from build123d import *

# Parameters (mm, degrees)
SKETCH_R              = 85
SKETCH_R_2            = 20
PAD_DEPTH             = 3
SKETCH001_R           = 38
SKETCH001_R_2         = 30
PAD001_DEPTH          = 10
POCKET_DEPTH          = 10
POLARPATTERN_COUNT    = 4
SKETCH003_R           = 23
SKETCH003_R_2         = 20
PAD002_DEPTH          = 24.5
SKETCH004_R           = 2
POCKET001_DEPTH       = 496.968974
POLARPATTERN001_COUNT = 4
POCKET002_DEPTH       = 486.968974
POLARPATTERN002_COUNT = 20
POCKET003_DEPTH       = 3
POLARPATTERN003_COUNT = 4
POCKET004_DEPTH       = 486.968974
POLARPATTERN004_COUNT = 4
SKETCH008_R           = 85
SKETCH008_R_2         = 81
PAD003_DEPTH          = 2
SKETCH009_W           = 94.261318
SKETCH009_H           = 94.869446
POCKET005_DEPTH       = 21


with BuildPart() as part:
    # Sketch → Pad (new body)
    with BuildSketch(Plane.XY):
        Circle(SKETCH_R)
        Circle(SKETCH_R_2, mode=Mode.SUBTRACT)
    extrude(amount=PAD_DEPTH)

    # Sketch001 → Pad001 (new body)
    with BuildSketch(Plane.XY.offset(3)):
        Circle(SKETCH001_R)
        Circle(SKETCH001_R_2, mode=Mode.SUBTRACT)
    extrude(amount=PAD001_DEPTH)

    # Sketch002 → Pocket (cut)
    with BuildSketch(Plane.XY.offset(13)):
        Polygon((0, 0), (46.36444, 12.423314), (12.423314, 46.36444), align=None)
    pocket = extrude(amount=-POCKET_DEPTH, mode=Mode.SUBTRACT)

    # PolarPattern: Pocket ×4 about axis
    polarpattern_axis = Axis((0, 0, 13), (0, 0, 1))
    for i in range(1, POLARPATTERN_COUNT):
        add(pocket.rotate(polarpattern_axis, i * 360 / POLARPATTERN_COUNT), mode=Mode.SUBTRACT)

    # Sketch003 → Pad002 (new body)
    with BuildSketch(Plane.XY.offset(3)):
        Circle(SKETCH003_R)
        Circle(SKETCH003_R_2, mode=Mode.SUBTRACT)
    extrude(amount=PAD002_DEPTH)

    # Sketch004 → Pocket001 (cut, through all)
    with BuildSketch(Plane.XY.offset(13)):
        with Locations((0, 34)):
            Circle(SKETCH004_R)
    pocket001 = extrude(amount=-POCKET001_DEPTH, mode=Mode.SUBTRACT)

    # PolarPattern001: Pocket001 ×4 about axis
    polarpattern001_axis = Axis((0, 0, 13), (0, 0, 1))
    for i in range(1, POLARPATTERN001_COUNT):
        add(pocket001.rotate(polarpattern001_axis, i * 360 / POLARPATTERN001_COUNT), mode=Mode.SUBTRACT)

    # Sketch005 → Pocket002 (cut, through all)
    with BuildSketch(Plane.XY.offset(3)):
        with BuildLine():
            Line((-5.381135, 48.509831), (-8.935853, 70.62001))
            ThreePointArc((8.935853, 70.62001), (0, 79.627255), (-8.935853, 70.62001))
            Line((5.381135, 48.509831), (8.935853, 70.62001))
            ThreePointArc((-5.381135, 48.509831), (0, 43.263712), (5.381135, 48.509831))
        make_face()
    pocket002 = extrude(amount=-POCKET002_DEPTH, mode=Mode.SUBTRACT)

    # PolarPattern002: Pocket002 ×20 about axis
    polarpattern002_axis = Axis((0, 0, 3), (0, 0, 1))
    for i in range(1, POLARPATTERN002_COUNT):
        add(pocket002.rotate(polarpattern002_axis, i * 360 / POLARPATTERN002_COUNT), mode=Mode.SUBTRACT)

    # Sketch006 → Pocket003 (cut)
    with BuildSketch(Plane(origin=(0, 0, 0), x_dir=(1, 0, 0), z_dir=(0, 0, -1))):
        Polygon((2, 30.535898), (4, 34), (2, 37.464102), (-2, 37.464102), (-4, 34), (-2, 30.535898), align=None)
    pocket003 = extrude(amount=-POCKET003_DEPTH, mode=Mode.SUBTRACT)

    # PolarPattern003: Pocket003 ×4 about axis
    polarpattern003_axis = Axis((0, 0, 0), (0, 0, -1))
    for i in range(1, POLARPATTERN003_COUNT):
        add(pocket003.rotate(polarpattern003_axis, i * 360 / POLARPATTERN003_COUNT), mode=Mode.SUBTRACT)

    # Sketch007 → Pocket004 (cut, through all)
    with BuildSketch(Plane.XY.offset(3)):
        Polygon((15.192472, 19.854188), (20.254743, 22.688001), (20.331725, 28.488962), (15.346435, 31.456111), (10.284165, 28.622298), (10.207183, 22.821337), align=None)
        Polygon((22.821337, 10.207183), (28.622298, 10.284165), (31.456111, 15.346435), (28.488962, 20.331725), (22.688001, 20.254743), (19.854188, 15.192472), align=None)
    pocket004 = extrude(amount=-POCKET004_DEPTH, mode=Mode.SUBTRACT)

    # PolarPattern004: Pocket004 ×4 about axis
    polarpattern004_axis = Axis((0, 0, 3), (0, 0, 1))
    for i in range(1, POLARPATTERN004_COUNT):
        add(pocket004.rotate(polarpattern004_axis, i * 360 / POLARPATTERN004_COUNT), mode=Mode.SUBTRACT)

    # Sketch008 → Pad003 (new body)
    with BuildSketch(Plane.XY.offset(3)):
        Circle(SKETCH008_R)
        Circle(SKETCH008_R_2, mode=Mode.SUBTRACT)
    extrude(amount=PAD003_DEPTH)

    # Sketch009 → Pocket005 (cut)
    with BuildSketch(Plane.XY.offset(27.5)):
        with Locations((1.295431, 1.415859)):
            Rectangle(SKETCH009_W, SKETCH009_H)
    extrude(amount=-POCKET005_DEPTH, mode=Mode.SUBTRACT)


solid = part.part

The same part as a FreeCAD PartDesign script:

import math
import FreeCAD as App
import Part
import Sketcher

V = App.Vector
Q = App.Units.Quantity

doc = App.newDocument("Part")
body = doc.addObject("PartDesign::Body", "Body")

sketch1 = body.newObject("Sketcher::SketchObject", "Sketch")
sketch1.AttachmentSupport = (doc.getObject("XY_Plane"), [""])
sketch1.MapMode = "FlatFace"
sketch1.addGeometry(Part.Circle(V(0, 0, 0), V(0, 0, 1), 85), False)
sketch1.addGeometry(Part.Circle(V(0, 0, 0), V(0, 0, 1), 20), False)
sketch1.addConstraint(Sketcher.Constraint("Coincident", 0, 3, -1, 1))
sketch1.addConstraint(Sketcher.Constraint("Coincident", 1, 3, -1, 1))
sketch1.addConstraint(Sketcher.Constraint("Diameter", 0, Q("170 mm")))
sketch1.addConstraint(Sketcher.Constraint("Diameter", 1, Q("40 mm")))
pad1 = body.newObject("PartDesign::Pad", "Pad")
pad1.Profile = sketch1
pad1.Length = 3

sketch2 = body.newObject("Sketcher::SketchObject", "Sketch001")
sketch2.AttachmentSupport = (doc.getObject("XY_Plane"), [""])
sketch2.MapMode = "FlatFace"
sketch2.AttachmentOffset = App.Placement(V(0, 0, 3), App.Rotation())
sketch2.addGeometry(Part.Circle(V(0, 0, 0), V(0, 0, 1), 38), False)
sketch2.addGeometry(Part.Circle(V(0, 0, 0), V(0, 0, 1), 30), False)
sketch2.addConstraint(Sketcher.Constraint("Coincident", 0, 3, -1, 1))
sketch2.addConstraint(Sketcher.Constraint("Coincident", 1, 3, -1, 1))
sketch2.addConstraint(Sketcher.Constraint("Diameter", 0, Q("76 mm")))
sketch2.addConstraint(Sketcher.Constraint("Diameter", 1, Q("60 mm")))
pad2 = body.newObject("PartDesign::Pad", "Pad001")
pad2.Profile = sketch2
pad2.Length = 10

sketch3 = body.newObject("Sketcher::SketchObject", "Sketch002")
sketch3.AttachmentSupport = (doc.getObject("XY_Plane"), [""])
sketch3.MapMode = "FlatFace"
sketch3.AttachmentOffset = App.Placement(V(0, 0, 13), App.Rotation())
sketch3.addGeometry(Part.LineSegment(V(0, 0, 0), V(46, 12, 0)), False)
sketch3.addGeometry(Part.LineSegment(V(46, 12, 0), V(12, 46, 0)), False)
sketch3.addGeometry(Part.LineSegment(V(12, 46, 0), V(0, 0, 0)), False)
sketch3.addConstraint(Sketcher.Constraint("Coincident", 0, 2, 1, 1))
sketch3.addConstraint(Sketcher.Constraint("Coincident", 1, 2, 2, 1))
sketch3.addConstraint(Sketcher.Constraint("Coincident", 2, 2, 0, 1))
sketch3.addConstraint(Sketcher.Constraint("Coincident", 2, 2, -1, 1))
sketch3.addConstraint(Sketcher.Constraint("Equal", 0, 1))
sketch3.addConstraint(Sketcher.Constraint("Equal", 1, 2))
sketch3.addConstraint(Sketcher.Constraint("Angle", 0, Q("15 deg")))
sketch3.addConstraint(Sketcher.Constraint("Distance", 0, Q("48 mm")))
pocket1 = body.newObject("PartDesign::Pocket", "Pocket")
pocket1.Profile = sketch3
pocket1.Length = 10
doc.recompute()

polarpattern = body.newObject("PartDesign::PolarPattern", "PolarPattern")
polarpattern.Originals = [pocket1]
polarpattern.Axis = (doc.getObject("Z_Axis"), [""])
polarpattern.Angle = 360
polarpattern.Occurrences = 4
body.Tip = polarpattern

sketch4 = body.newObject("Sketcher::SketchObject", "Sketch003")
sketch4.AttachmentSupport = (doc.getObject("XY_Plane"), [""])
sketch4.MapMode = "FlatFace"
sketch4.AttachmentOffset = App.Placement(V(0, 0, 3), App.Rotation())
sketch4.addGeometry(Part.Circle(V(0, 0, 0), V(0, 0, 1), 23), False)
sketch4.addGeometry(Part.Circle(V(0, 0, 0), V(0, 0, 1), 20), False)
sketch4.addConstraint(Sketcher.Constraint("Coincident", 0, 3, -1, 1))
sketch4.addConstraint(Sketcher.Constraint("Coincident", 1, 3, -1, 1))
sketch4.addConstraint(Sketcher.Constraint("Diameter", 0, Q("46 mm")))
sketch4.addConstraint(Sketcher.Constraint("Diameter", 1, Q("40 mm")))
pad3 = body.newObject("PartDesign::Pad", "Pad002")
pad3.Profile = sketch4
pad3.Length = 24.5

sketch5 = body.newObject("Sketcher::SketchObject", "Sketch004")
sketch5.AttachmentSupport = (doc.getObject("XY_Plane"), [""])
sketch5.MapMode = "FlatFace"
sketch5.AttachmentOffset = App.Placement(V(0, 0, 13), App.Rotation())
sketch5.addGeometry(Part.Circle(V(0, 34, 0), V(0, 0, 1), 2), False)
sketch5.addConstraint(Sketcher.Constraint("PointOnObject", 0, 3, -2))
sketch5.addConstraint(Sketcher.Constraint("Diameter", 0, Q("4 mm")))
sketch5.addConstraint(Sketcher.Constraint("DistanceY", -1, 1, 0, 3, Q("34 mm")))
pocket2 = body.newObject("PartDesign::Pocket", "Pocket001")
pocket2.Profile = sketch5
pocket2.Type = "ThroughAll"
doc.recompute()

polarpattern2 = body.newObject("PartDesign::PolarPattern", "PolarPattern001")
polarpattern2.Originals = [pocket2]
polarpattern2.Axis = (doc.getObject("Z_Axis"), [""])
polarpattern2.Angle = 360
polarpattern2.Occurrences = 4
body.Tip = polarpattern2

sketch6 = body.newObject("Sketcher::SketchObject", "Sketch005")
sketch6.AttachmentSupport = (doc.getObject("XY_Plane"), [""])
sketch6.MapMode = "FlatFace"
sketch6.AttachmentOffset = App.Placement(V(0, 0, 3), App.Rotation())
sketch6.addGeometry(Part.LineSegment(V(-9, 71, 0), V(-5, 49, 0)), False)
sketch6.addGeometry(Part.ArcOfCircle(Part.Circle(V(0, 49, 0), V(0, 0, 1), 5), math.radians(-179), math.radians(-1)), False)
sketch6.addGeometry(Part.LineSegment(V(5, 49, 0), V(9, 71, 0)), False)
sketch6.addGeometry(Part.ArcOfCircle(Part.Circle(V(0, 71, 0), V(0, 0, 1), 9), math.radians(0), math.radians(180)), False)
sketch6.addConstraint(Sketcher.Constraint("Coincident", 0, 2, 1, 1))
sketch6.addConstraint(Sketcher.Constraint("Coincident", 1, 2, 2, 1))
sketch6.addConstraint(Sketcher.Constraint("Coincident", 2, 2, 3, 1))
sketch6.addConstraint(Sketcher.Constraint("Coincident", 3, 2, 0, 1))
sketch6.addConstraint(Sketcher.Constraint("Symmetric", 0, 2, 1, 2, -2))
sketch6.addConstraint(Sketcher.Constraint("Symmetric", 2, 2, 3, 2, -2))
sketch6.addConstraint(Sketcher.Constraint("Radius", 1, Q("5.382872 mm")))
sketch6.addConstraint(Sketcher.Constraint("Radius", 3, Q("8.936136 mm")))
sketch6.addConstraint(Sketcher.Constraint("DistanceY", -1, 1, 3, 3, Q("70.691119 mm")))
sketch6.addConstraint(Sketcher.Constraint("DistanceY", -1, 1, 0, 2, Q("48.509831 mm")))
sketch6.addConstraint(Sketcher.Constraint("DistanceY", -1, 1, 2, 2, Q("70.62001 mm")))
sketch6.addConstraint(Sketcher.Constraint("DistanceX", 0, 2, 1, 2, Q("10.76227 mm")))
pocket3 = body.newObject("PartDesign::Pocket", "Pocket002")
pocket3.Profile = sketch6
pocket3.Type = "ThroughAll"
doc.recompute()

polarpattern3 = body.newObject("PartDesign::PolarPattern", "PolarPattern002")
polarpattern3.Originals = [pocket3]
polarpattern3.Axis = (doc.getObject("Z_Axis"), [""])
polarpattern3.Angle = 360
polarpattern3.Occurrences = 20
body.Tip = polarpattern3

sketch7 = body.newObject("Sketcher::SketchObject", "Sketch006")
sketch7.AttachmentSupport = (doc.getObject("XY_Plane"), [""])
sketch7.MapMode = "FlatFace"
sketch7.addGeometry(Part.LineSegment(V(2, -30.5, 0), V(4, -34, 0)), False)
sketch7.addGeometry(Part.LineSegment(V(4, -34, 0), V(2, -37.5, 0)), False)
sketch7.addGeometry(Part.LineSegment(V(2, -37.5, 0), V(-2, -37.5, 0)), False)
sketch7.addGeometry(Part.LineSegment(V(-2, -37.5, 0), V(-4, -34, 0)), False)
sketch7.addGeometry(Part.LineSegment(V(-4, -34, 0), V(-2, -30.5, 0)), False)
sketch7.addGeometry(Part.LineSegment(V(-2, -30.5, 0), V(2, -30.5, 0)), False)
sketch7.addConstraint(Sketcher.Constraint("Coincident", 0, 2, 1, 1))
sketch7.addConstraint(Sketcher.Constraint("Coincident", 1, 2, 2, 1))
sketch7.addConstraint(Sketcher.Constraint("Coincident", 2, 2, 3, 1))
sketch7.addConstraint(Sketcher.Constraint("Coincident", 3, 2, 4, 1))
sketch7.addConstraint(Sketcher.Constraint("Coincident", 4, 2, 5, 1))
sketch7.addConstraint(Sketcher.Constraint("Coincident", 5, 2, 0, 1))
sketch7.addConstraint(Sketcher.Constraint("Horizontal", 2))
sketch7.addConstraint(Sketcher.Constraint("Horizontal", 5))
sketch7.addConstraint(Sketcher.Constraint("Symmetric", 0, 2, 3, 2, -2))
sketch7.addConstraint(Sketcher.Constraint("Parallel", 0, 3))
sketch7.addConstraint(Sketcher.Constraint("Parallel", 1, 4))
sketch7.addConstraint(Sketcher.Constraint("Vertical", 2, 2, 4, 2))
sketch7.addConstraint(Sketcher.Constraint("Vertical", 1, 2, 5, 2))
sketch7.addConstraint(Sketcher.Constraint("DistanceX", 2, 2, 2, 1, Q("4 mm")))
sketch7.addConstraint(Sketcher.Constraint("Angle", 0, Q("-60.000003 deg")))
sketch7.addConstraint(Sketcher.Constraint("Distance", 0, Q("4 mm")))
sketch7.addConstraint(Sketcher.Constraint("DistanceY", 0, 2, -1, 1, Q("34 mm")))
pocket4 = body.newObject("PartDesign::Pocket", "Pocket003")
pocket4.Profile = sketch7
pocket4.Length = 3
pocket4.Reversed = True
doc.recompute()

polarpattern4 = body.newObject("PartDesign::PolarPattern", "PolarPattern003")
polarpattern4.Originals = [pocket4]
polarpattern4.Axis = (doc.getObject("Z_Axis"), [""])
polarpattern4.Angle = 360
polarpattern4.Occurrences = 4
body.Tip = polarpattern4

sketch8 = body.newObject("Sketcher::SketchObject", "Sketch007")
sketch8.AttachmentSupport = (doc.getObject("XY_Plane"), [""])
sketch8.MapMode = "FlatFace"
sketch8.AttachmentOffset = App.Placement(V(0, 0, 3), App.Rotation())
sketch8.addGeometry(Part.LineSegment(V(15.192472, 19.854188, 0), V(20.254743, 22.688001, 0)), False)
sketch8.addGeometry(Part.LineSegment(V(20.254743, 22.688001, 0), V(20.331725, 28.488962, 0)), False)
sketch8.addGeometry(Part.LineSegment(V(20.331725, 28.488962, 0), V(15.346435, 31.456111, 0)), False)
sketch8.addGeometry(Part.LineSegment(V(15.346435, 31.456111, 0), V(10.284165, 28.622298, 0)), False)
sketch8.addGeometry(Part.LineSegment(V(10.284165, 28.622298, 0), V(10.207183, 22.821337, 0)), False)
sketch8.addGeometry(Part.LineSegment(V(10.207183, 22.821337, 0), V(15.192472, 19.854188, 0)), False)
sketch8.addGeometry(Part.LineSegment(V(22.821337, 10.207183, 0), V(28.622298, 10.284165, 0)), False)
sketch8.addGeometry(Part.LineSegment(V(28.622298, 10.284165, 0), V(31.456111, 15.346435, 0)), False)
sketch8.addGeometry(Part.LineSegment(V(31.456111, 15.346435, 0), V(28.488962, 20.331725, 0)), False)
sketch8.addGeometry(Part.LineSegment(V(28.488962, 20.331725, 0), V(22.688001, 20.254743, 0)), False)
sketch8.addGeometry(Part.LineSegment(V(22.688001, 20.254743, 0), V(19.854188, 15.192472, 0)), False)
sketch8.addGeometry(Part.LineSegment(V(19.854188, 15.192472, 0), V(22.821337, 10.207183, 0)), False)
sketch8.addConstraint(Sketcher.Constraint("Coincident", 0, 2, 1, 1))
sketch8.addConstraint(Sketcher.Constraint("Coincident", 1, 2, 2, 1))
sketch8.addConstraint(Sketcher.Constraint("Coincident", 2, 2, 3, 1))
sketch8.addConstraint(Sketcher.Constraint("Coincident", 3, 2, 4, 1))
sketch8.addConstraint(Sketcher.Constraint("Coincident", 4, 2, 5, 1))
sketch8.addConstraint(Sketcher.Constraint("Coincident", 5, 2, 0, 1))
sketch8.addConstraint(Sketcher.Constraint("Coincident", 6, 2, 7, 1))
sketch8.addConstraint(Sketcher.Constraint("Coincident", 7, 2, 8, 1))
sketch8.addConstraint(Sketcher.Constraint("Coincident", 8, 2, 9, 1))
sketch8.addConstraint(Sketcher.Constraint("Coincident", 9, 2, 10, 1))
sketch8.addConstraint(Sketcher.Constraint("Coincident", 10, 2, 11, 1))
sketch8.addConstraint(Sketcher.Constraint("Coincident", 11, 2, 6, 1))
sketch8.addConstraint(Sketcher.Constraint("Parallel", 0, 3))
sketch8.addConstraint(Sketcher.Constraint("Parallel", 1, 4))
sketch8.addConstraint(Sketcher.Constraint("Parallel", 2, 5))
sketch8.addConstraint(Sketcher.Constraint("Parallel", 6, 9))
sketch8.addConstraint(Sketcher.Constraint("Parallel", 7, 10))
sketch8.addConstraint(Sketcher.Constraint("Parallel", 8, 11))
sketch8.addConstraint(Sketcher.Constraint("Equal", 0, 1))
sketch8.addConstraint(Sketcher.Constraint("Equal", 1, 2))
sketch8.addConstraint(Sketcher.Constraint("Equal", 2, 3))
sketch8.addConstraint(Sketcher.Constraint("Equal", 5, 6))
sketch8.addConstraint(Sketcher.Constraint("Equal", 6, 7))
sketch8.addConstraint(Sketcher.Constraint("Equal", 7, 8))
sketch8.addConstraint(Sketcher.Constraint("Equal", 8, 9))
sketch8.addConstraint(Sketcher.Constraint("DistanceY", -1, 1, 0, 2, Q("22.688001 mm")))
sketch8.addConstraint(Sketcher.Constraint("DistanceX", -1, 1, 9, 2, Q("22.688001 mm")))
sketch8.addConstraint(Sketcher.Constraint("DistanceY", -1, 1, 3, 2, Q("28.622298 mm")))
sketch8.addConstraint(Sketcher.Constraint("DistanceX", -1, 1, 6, 2, Q("28.622298 mm")))
sketch8.addConstraint(Sketcher.Constraint("Distance", 1, Q("5.801472 mm")))
sketch8.addConstraint(Sketcher.Constraint("DistanceY", -1, 1, 2, 2, Q("31.456111 mm")))
sketch8.addConstraint(Sketcher.Constraint("DistanceX", -1, 1, 7, 2, Q("31.456111 mm")))
sketch8.addConstraint(Sketcher.Constraint("DistanceX", 0, 2, 1, 2, Q("0.076982 mm")))
sketch8.addConstraint(Sketcher.Constraint("DistanceX", 5, 2, 7, 2, Q("16.263639 mm")))
sketch8.addConstraint(Sketcher.Constraint("DistanceX", 8, 2, 7, 2, Q("2.967149 mm")))
sketch8.addConstraint(Sketcher.Constraint("DistanceY", 9, 2, 1, 2, Q("8.234219 mm")))
pocket5 = body.newObject("PartDesign::Pocket", "Pocket004")
pocket5.Profile = sketch8
pocket5.Type = "ThroughAll"
doc.recompute()

polarpattern5 = body.newObject("PartDesign::PolarPattern", "PolarPattern004")
polarpattern5.Originals = [pocket5]
polarpattern5.Axis = (doc.getObject("Z_Axis"), [""])
polarpattern5.Angle = 360
polarpattern5.Occurrences = 4
body.Tip = polarpattern5

sketch9 = body.newObject("Sketcher::SketchObject", "Sketch008")
sketch9.AttachmentSupport = (doc.getObject("XY_Plane"), [""])
sketch9.MapMode = "FlatFace"
sketch9.AttachmentOffset = App.Placement(V(0, 0, 3), App.Rotation())
sketch9.addGeometry(Part.Circle(V(0, 0, 0), V(0, 0, 1), 85), False)
sketch9.addGeometry(Part.Circle(V(0, 0, 0), V(0, 0, 1), 81), False)
sketch9.addConstraint(Sketcher.Constraint("Coincident", 0, 3, -1, 1))
sketch9.addConstraint(Sketcher.Constraint("Coincident", 1, 3, -1, 1))
sketch9.addConstraint(Sketcher.Constraint("Diameter", 0, Q("170 mm")))
sketch9.addConstraint(Sketcher.Constraint("Diameter", 1, Q("162 mm")))
pad4 = body.newObject("PartDesign::Pad", "Pad003")
pad4.Profile = sketch9
pad4.Length = 2

sketch10 = body.newObject("Sketcher::SketchObject", "Sketch009")
sketch10.AttachmentSupport = (doc.getObject("XY_Plane"), [""])
sketch10.MapMode = "FlatFace"
sketch10.AttachmentOffset = App.Placement(V(0, 0, 27.5), App.Rotation())
sketch10.addGeometry(Part.LineSegment(V(-46, 49, 0), V(-46, -46, 0)), False)
sketch10.addGeometry(Part.LineSegment(V(-46, -46, 0), V(48, -46, 0)), False)
sketch10.addGeometry(Part.LineSegment(V(48, -46, 0), V(48, 49, 0)), False)
sketch10.addGeometry(Part.LineSegment(V(48, 49, 0), V(-46, 49, 0)), False)
sketch10.addConstraint(Sketcher.Constraint("Coincident", 0, 2, 1, 1))
sketch10.addConstraint(Sketcher.Constraint("Coincident", 1, 2, 2, 1))
sketch10.addConstraint(Sketcher.Constraint("Coincident", 2, 2, 3, 1))
sketch10.addConstraint(Sketcher.Constraint("Coincident", 3, 2, 0, 1))
sketch10.addConstraint(Sketcher.Constraint("Vertical", 0))
sketch10.addConstraint(Sketcher.Constraint("Horizontal", 1))
sketch10.addConstraint(Sketcher.Constraint("Vertical", 2))
sketch10.addConstraint(Sketcher.Constraint("Horizontal", 3))
sketch10.addConstraint(Sketcher.Constraint("DistanceX", 1, 1, 1, 2, Q("94.261318 mm")))
sketch10.addConstraint(Sketcher.Constraint("DistanceY", 0, 2, 0, 1, Q("94.869446 mm")))
sketch10.addConstraint(Sketcher.Constraint("DistanceX", -1, 1, 1, 2, Q("48.42609 mm")))
sketch10.addConstraint(Sketcher.Constraint("DistanceY", 0, 2, -1, 1, Q("46.018864 mm")))
pocket6 = body.newObject("PartDesign::Pocket", "Pocket005")
pocket6.Profile = sketch10
pocket6.Length = 21

doc.recompute()
